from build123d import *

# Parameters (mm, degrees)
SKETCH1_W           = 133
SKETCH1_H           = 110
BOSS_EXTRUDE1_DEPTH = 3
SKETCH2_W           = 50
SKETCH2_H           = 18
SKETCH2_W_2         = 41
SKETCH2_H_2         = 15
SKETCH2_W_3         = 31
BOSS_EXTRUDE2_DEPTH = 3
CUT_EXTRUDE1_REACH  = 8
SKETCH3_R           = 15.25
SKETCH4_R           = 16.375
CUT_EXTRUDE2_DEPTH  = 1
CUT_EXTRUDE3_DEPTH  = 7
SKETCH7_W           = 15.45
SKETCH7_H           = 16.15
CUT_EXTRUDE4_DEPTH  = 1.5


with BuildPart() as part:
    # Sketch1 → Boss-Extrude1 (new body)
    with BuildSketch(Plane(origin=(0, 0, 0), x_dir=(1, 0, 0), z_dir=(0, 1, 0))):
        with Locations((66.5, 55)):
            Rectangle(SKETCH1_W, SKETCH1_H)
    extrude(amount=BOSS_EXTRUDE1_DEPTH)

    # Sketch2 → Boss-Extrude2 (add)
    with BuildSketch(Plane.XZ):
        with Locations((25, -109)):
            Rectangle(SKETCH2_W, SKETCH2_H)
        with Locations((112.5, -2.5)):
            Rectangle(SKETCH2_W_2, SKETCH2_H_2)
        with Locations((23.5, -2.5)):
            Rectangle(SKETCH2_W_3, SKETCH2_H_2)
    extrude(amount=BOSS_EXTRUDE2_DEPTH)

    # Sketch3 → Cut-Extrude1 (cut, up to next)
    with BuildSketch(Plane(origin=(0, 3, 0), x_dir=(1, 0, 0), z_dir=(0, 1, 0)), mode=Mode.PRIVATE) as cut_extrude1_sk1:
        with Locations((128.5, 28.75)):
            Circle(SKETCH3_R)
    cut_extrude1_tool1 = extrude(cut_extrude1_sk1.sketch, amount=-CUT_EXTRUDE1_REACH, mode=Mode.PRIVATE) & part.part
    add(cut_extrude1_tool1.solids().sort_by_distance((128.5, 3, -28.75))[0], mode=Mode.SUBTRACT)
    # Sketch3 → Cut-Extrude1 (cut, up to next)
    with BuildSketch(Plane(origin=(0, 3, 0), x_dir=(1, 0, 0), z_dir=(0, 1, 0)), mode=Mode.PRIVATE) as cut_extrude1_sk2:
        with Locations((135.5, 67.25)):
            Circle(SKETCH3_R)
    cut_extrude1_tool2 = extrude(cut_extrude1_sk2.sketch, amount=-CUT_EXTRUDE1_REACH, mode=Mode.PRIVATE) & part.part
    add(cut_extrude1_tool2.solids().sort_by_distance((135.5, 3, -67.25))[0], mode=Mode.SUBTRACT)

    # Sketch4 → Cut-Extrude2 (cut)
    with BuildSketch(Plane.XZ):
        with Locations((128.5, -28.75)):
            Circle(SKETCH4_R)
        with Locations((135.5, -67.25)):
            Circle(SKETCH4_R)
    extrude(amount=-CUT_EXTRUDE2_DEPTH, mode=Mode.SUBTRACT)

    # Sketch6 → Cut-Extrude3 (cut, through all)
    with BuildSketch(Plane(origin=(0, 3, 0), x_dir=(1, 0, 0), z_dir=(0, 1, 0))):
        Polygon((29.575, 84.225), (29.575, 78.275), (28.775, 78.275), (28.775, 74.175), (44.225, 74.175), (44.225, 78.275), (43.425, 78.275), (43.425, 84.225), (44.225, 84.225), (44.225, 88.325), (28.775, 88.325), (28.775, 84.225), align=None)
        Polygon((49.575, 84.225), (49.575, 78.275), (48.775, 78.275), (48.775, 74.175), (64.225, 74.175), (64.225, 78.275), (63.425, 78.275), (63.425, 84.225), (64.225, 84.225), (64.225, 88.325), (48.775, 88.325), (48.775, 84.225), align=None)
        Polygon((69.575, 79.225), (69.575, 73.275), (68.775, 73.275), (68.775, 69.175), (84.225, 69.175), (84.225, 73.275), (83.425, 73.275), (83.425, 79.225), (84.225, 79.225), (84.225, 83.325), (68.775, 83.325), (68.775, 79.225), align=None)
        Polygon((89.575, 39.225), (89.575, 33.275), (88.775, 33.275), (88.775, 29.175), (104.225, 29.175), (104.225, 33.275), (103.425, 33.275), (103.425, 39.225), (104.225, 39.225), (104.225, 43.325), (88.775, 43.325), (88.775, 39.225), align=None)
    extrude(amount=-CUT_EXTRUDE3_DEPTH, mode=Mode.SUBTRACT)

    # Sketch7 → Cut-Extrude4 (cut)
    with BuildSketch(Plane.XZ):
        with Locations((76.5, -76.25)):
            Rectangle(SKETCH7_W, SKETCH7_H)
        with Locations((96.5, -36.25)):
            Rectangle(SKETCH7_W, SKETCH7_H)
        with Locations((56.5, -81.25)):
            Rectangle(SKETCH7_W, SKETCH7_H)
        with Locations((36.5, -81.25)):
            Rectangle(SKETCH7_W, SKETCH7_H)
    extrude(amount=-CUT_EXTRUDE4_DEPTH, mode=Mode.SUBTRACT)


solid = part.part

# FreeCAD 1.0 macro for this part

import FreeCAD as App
import Part
import Sketcher
from FreeCAD import Vector
Q = App.Units.Quantity


def add_polygon(sketch, points):
    """Adds a closed chain of lines whose ends are joined by coincident constraints."""
    first, n = sketch.GeometryCount, len(points)
    for a, b in zip(points, points[1:] + points[:1]):
        sketch.addGeometry(Part.LineSegment(App.Vector(*a, 0), App.Vector(*b, 0)), False)
    for i in range(n):
        sketch.addConstraint(Sketcher.Constraint("Coincident", first + i, 2, first + (i + 1) % n, 1))

doc = App.newDocument("Part")
body = doc.addObject("PartDesign::Body", "Body")

sketch1 = body.newObject("Sketcher::SketchObject", "Sketch")
sketch1.AttachmentSupport = (doc.getObject("XZ_Plane"), [""])
sketch1.MapMode = "FlatFace"
add_polygon(sketch1, [(0, -110), (0, 0), (133, 0), (133, -110)])
sketch1.addConstraint(Sketcher.Constraint("Vertical", 0))
sketch1.addConstraint(Sketcher.Constraint("Horizontal", 1))
sketch1.addConstraint(Sketcher.Constraint("Vertical", 2))
sketch1.addConstraint(Sketcher.Constraint("Horizontal", 3))
sketch1.addConstraint(Sketcher.Constraint("Coincident", 0, 2, -1, 1))
sketch1.addConstraint(Sketcher.Constraint("DistanceX", 1, 1, 1, 2, Q("133 mm")))
sketch1.addConstraint(Sketcher.Constraint("DistanceY", 0, 1, 0, 2, Q("110 mm")))
pad1 = body.newObject("PartDesign::Pad", "Pad")
pad1.Profile = sketch1
pad1.Length = 3
pad1.Reversed = True

sketch2 = body.newObject("Sketcher::SketchObject", "Sketch001")
sketch2.AttachmentSupport = (doc.getObject("XZ_Plane"), [""])
sketch2.MapMode = "FlatFace"
add_polygon(sketch2, [(0, -100), (0, -118), (50, -118), (50, -100)])
add_polygon(sketch2, [(92, 5), (92, -10), (133, -10), (133, 5)])
add_polygon(sketch2, [(8, 5), (8, -10), (39, -10), (39, 5)])
sketch2.addConstraint(Sketcher.Constraint("Vertical", 0))
sketch2.addConstraint(Sketcher.Constraint("Horizontal", 1))
sketch2.addConstraint(Sketcher.Constraint("Vertical", 2))
sketch2.addConstraint(Sketcher.Constraint("Horizontal", 3))
sketch2.addConstraint(Sketcher.Constraint("Vertical", 4))
sketch2.addConstraint(Sketcher.Constraint("Horizontal", 5))
sketch2.addConstraint(Sketcher.Constraint("Vertical", 6))
sketch2.addConstraint(Sketcher.Constraint("Horizontal", 7))
sketch2.addConstraint(Sketcher.Constraint("Vertical", 8))
sketch2.addConstraint(Sketcher.Constraint("Horizontal", 9))
sketch2.addConstraint(Sketcher.Constraint("Vertical", 10))
sketch2.addConstraint(Sketcher.Constraint("Horizontal", 11))
sketch2.addConstraint(Sketcher.Constraint("PointOnObject", 0, 2, -2))
sketch2.addConstraint(Sketcher.Constraint("Horizontal", 5, 2, 8, 2))
sketch2.addConstraint(Sketcher.Constraint("Horizontal", 7, 2, 10, 2))
sketch2.addConstraint(Sketcher.Constraint("DistanceX", 1, 1, 1, 2, Q("50 mm")))
sketch2.addConstraint(Sketcher.Constraint("DistanceX", 5, 1, 5, 2, Q("41 mm")))
sketch2.addConstraint(Sketcher.Constraint("DistanceX", 9, 1, 9, 2, Q("31 mm")))
sketch2.addConstraint(Sketcher.Constraint("DistanceY", 0, 2, 0, 1, Q("18 mm")))
sketch2.addConstraint(Sketcher.Constraint("DistanceY", 4, 2, 4, 1, Q("15 mm")))
sketch2.addConstraint(Sketcher.Constraint("DistanceY", 0, 2, -1, 1, Q("118 mm")))
sketch2.addConstraint(Sketcher.Constraint("DistanceX", -1, 1, 4, 2, Q("92 mm")))
sketch2.addConstraint(Sketcher.Constraint("DistanceY", 4, 2, -1, 1, Q("10 mm")))
sketch2.addConstraint(Sketcher.Constraint("DistanceX", -1, 1, 8, 2, Q("8 mm")))
pad2 = body.newObject("PartDesign::Pad", "Pad001")
pad2.Profile = sketch2
pad2.Length = 3

sketch3 = body.newObject("Sketcher::SketchObject", "Sketch002")
sketch3.AttachmentSupport = (doc.getObject("XZ_Plane"), [""])
sketch3.MapMode = "FlatFace"
sketch3.AttachmentOffset = App.Placement(Vector(0, 0, -3), App.Rotation())
sketch3.addGeometry(Part.Circle(Vector(128.5, -28.75, 0), Vector(0, 0, 1), 15.25), False)
sketch3.addConstraint(Sketcher.Constraint("Diameter", 0, Q("30.5 mm")))
sketch3.addConstraint(Sketcher.Constraint("DistanceX", -1, 1, 0, 3, Q("128.5 mm")))
sketch3.addConstraint(Sketcher.Constraint("DistanceY", 0, 3, -1, 1, Q("28.75 mm")))
pocket1 = body.newObject("PartDesign::Pocket", "Pocket")
pocket1.Profile = sketch3
pocket1.Type = "UpToFirst"
pocket1.Reversed = True

sketch4 = body.newObject("Sketcher::SketchObject", "Sketch003")
sketch4.AttachmentSupport = (doc.getObject("XZ_Plane"), [""])
sketch4.MapMode = "FlatFace"
sketch4.AttachmentOffset = App.Placement(Vector(0, 0, -3), App.Rotation())
sketch4.addGeometry(Part.Circle(Vector(135.5, -67.25, 0), Vector(0, 0, 1), 15.25), False)
sketch4.addConstraint(Sketcher.Constraint("Diameter", 0, Q("30.5 mm")))
sketch4.addConstraint(Sketcher.Constraint("DistanceX", -1, 1, 0, 3, Q("135.5 mm")))
sketch4.addConstraint(Sketcher.Constraint("DistanceY", 0, 3, -1, 1, Q("67.25 mm")))
pocket2 = body.newObject("PartDesign::Pocket", "Pocket001")
pocket2.Profile = sketch4
pocket2.Length = 3
pocket2.Reversed = True

sketch5 = body.newObject("Sketcher::SketchObject", "Sketch004")
sketch5.AttachmentSupport = (doc.getObject("XZ_Plane"), [""])
sketch5.MapMode = "FlatFace"
sketch5.addGeometry(Part.Circle(Vector(128.5, -28.75, 0), Vector(0, 0, 1), 16.375), False)
sketch5.addGeometry(Part.Circle(Vector(135.5, -67.25, 0), Vector(0, 0, 1), 16.375), False)
sketch5.addConstraint(Sketcher.Constraint("Equal", 0, 1))
sketch5.addConstraint(Sketcher.Constraint("Diameter", 0, Q("32.75 mm")))
sketch5.addConstraint(Sketcher.Constraint("DistanceX", 0, 3, 1, 3, Q("7 mm")))
sketch5.addConstraint(Sketcher.Constraint("DistanceX", -1, 1, 0, 3, Q("128.5 mm")))
sketch5.addConstraint(Sketcher.Constraint("DistanceY", 1, 3, 0, 3, Q("38.5 mm")))
sketch5.addConstraint(Sketcher.Constraint("DistanceY", 0, 3, -1, 1, Q("28.75 mm")))
pocket3 = body.newObject("PartDesign::Pocket", "Pocket002")
pocket3.Profile = sketch5
pocket3.Length = 1

sketch6 = body.newObject("Sketcher::SketchObject", "Sketch005")
sketch6.AttachmentSupport = (doc.getObject("XZ_Plane"), [""])
sketch6.MapMode = "FlatFace"
sketch6.AttachmentOffset = App.Placement(Vector(0, 0, -3), App.Rotation())
add_polygon(sketch6, [(29.575, -84.225), (29.575, -78.275), (28.775, -78.275), (28.775, -74.175), (44.225, -74.175), (44.225, -78.275), (43.425, -78.275), (43.425, -84.225), (44.225, -84.225), (44.225, -88.325), (28.775, -88.325), (28.775, -84.225)])
add_polygon(sketch6, [(49.575, -84.225), (49.575, -78.275), (48.775, -78.275), (48.775, -74.175), (64.225, -74.175), (64.225, -78.275), (63.425, -78.275), (63.425, -84.225), (64.225, -84.225), (64.225, -88.325), (48.775, -88.325), (48.775, -84.225)])
add_polygon(sketch6, [(69.575, -79.225), (69.575, -73.275), (68.775, -73.275), (68.775, -69.175), (84.225, -69.175), (84.225, -73.275), (83.425, -73.275), (83.425, -79.225), (84.225, -79.225), (84.225, -83.325), (68.775, -83.325), (68.775, -79.225)])
add_polygon(sketch6, [(89.575, -39.225), (89.575, -33.275), (88.775, -33.275), (88.775, -29.175), (104.225, -29.175), (104.225, -33.275), (103.425, -33.275), (103.425, -39.225), (104.225, -39.225), (104.225, -43.325), (88.775, -43.325), (88.775, -39.225)])
sketch6.addConstraint(Sketcher.Constraint("Vertical", 0))
sketch6.addConstraint(Sketcher.Constraint("Horizontal", 1))
sketch6.addConstraint(Sketcher.Constraint("Vertical", 2))
sketch6.addConstraint(Sketcher.Constraint("Horizontal", 3))
sketch6.addConstraint(Sketcher.Constraint("Vertical", 4))
sketch6.addConstraint(Sketcher.Constraint("Horizontal", 5))
sketch6.addConstraint(Sketcher.Constraint("Vertical", 6))
sketch6.addConstraint(Sketcher.Constraint("Horizontal", 7))
sketch6.addConstraint(Sketcher.Constraint("Vertical", 8))
sketch6.addConstraint(Sketcher.Constraint("Horizontal", 9))
sketch6.addConstraint(Sketcher.Constraint("Vertical", 10))
sketch6.addConstraint(Sketcher.Constraint("Horizontal", 11))
sketch6.addConstraint(Sketcher.Constraint("Vertical", 12))
sketch6.addConstraint(Sketcher.Constraint("Horizontal", 13))
sketch6.addConstraint(Sketcher.Constraint("Vertical", 14))
sketch6.addConstraint(Sketcher.Constraint("Horizontal", 15))
sketch6.addConstraint(Sketcher.Constraint("Vertical", 16))
sketch6.addConstraint(Sketcher.Constraint("Horizontal", 17))
sketch6.addConstraint(Sketcher.Constraint("Vertical", 18))
sketch6.addConstraint(Sketcher.Constraint("Horizontal", 19))
sketch6.addConstraint(Sketcher.Constraint("Vertical", 20))
sketch6.addConstraint(Sketcher.Constraint("Horizontal", 21))
sketch6.addConstraint(Sketcher.Constraint("Vertical", 22))
sketch6.addConstraint(Sketcher.Constraint("Horizontal", 23))
sketch6.addConstraint(Sketcher.Constraint("Vertical", 24))
sketch6.addConstraint(Sketcher.Constraint("Horizontal", 25))
sketch6.addConstraint(Sketcher.Constraint("Vertical", 26))
sketch6.addConstraint(Sketcher.Constraint("Horizontal", 27))
sketch6.addConstraint(Sketcher.Constraint("Vertical", 28))
sketch6.addConstraint(Sketcher.Constraint("Horizontal", 29))
sketch6.addConstraint(Sketcher.Constraint("Vertical", 30))
sketch6.addConstraint(Sketcher.Constraint("Horizontal", 31))
sketch6.addConstraint(Sketcher.Constraint("Vertical", 32))
sketch6.addConstraint(Sketcher.Constraint("Horizontal", 33))
sketch6.addConstraint(Sketcher.Constraint("Vertical", 34))
sketch6.addConstraint(Sketcher.Constraint("Horizontal", 35))
sketch6.addConstraint(Sketcher.Constraint("Vertical", 36))
sketch6.addConstraint(Sketcher.Constraint("Horizontal", 37))
sketch6.addConstraint(Sketcher.Constraint("Vertical", 38))
sketch6.addConstraint(Sketcher.Constraint("Horizontal", 39))
sketch6.addConstraint(Sketcher.Constraint("Vertical", 40))
sketch6.addConstraint(Sketcher.Constraint("Horizontal", 41))
sketch6.addConstraint(Sketcher.Constraint("Vertical", 42))
sketch6.addConstraint(Sketcher.Constraint("Horizontal", 43))
sketch6.addConstraint(Sketcher.Constraint("Vertical", 44))
sketch6.addConstraint(Sketcher.Constraint("Horizontal", 45))
sketch6.addConstraint(Sketcher.Constraint("Vertical", 46))
sketch6.addConstraint(Sketcher.Constraint("Horizontal", 47))
sketch6.addConstraint(Sketcher.Constraint("Horizontal", 1, 2, 4, 2))
sketch6.addConstraint(Sketcher.Constraint("Horizontal", 7, 2, 10, 2))
sketch6.addConstraint(Sketcher.Constraint("Horizontal", 5, 2, 12, 2))
sketch6.addConstraint(Sketcher.Constraint("Horizontal", 3, 2, 14, 2))
sketch6.addConstraint(Sketcher.Constraint("Horizontal", 13, 2, 16, 2))
sketch6.addConstraint(Sketcher.Constraint("Horizontal", 11, 2, 18, 2))
sketch6.addConstraint(Sketcher.Constraint("Horizontal", 9, 2, 20, 2))
sketch6.addConstraint(Sketcher.Constraint("Horizontal", 19, 2, 22, 2))
sketch6.addConstraint(Sketcher.Constraint("Horizontal", 25, 2, 28, 2))
sketch6.addConstraint(Sketcher.Constraint("Horizontal", 31, 2, 34, 2))
sketch6.addConstraint(Sketcher.Constraint("Horizontal", 37, 2, 40, 2))
sketch6.addConstraint(Sketcher.Constraint("Horizontal", 43, 2, 46, 2))
sketch6.addConstraint(Sketcher.Constraint("Vertical", 4, 2, 7, 2))
sketch6.addConstraint(Sketcher.Constraint("Vertical", 2, 2, 9, 2))
sketch6.addConstraint(Sketcher.Constraint("Vertical", 16, 2, 19, 2))
sketch6.addConstraint(Sketcher.Constraint("Vertical", 14, 2, 21, 2))
sketch6.addConstraint(Sketcher.Constraint("Vertical", 28, 2, 31, 2))
sketch6.addConstraint(Sketcher.Constraint("Vertical", 26, 2, 33, 2))
sketch6.addConstraint(Sketcher.Constraint("Vertical", 40, 2, 43, 2))
sketch6.addConstraint(Sketcher.Constraint("Vertical", 38, 2, 45, 2))
sketch6.addConstraint(Sketcher.Constraint("Equal", 1, 5))
sketch6.addConstraint(Sketcher.Constraint("Equal", 11, 13))
sketch6.addConstraint(Sketcher.Constraint("Equal", 9, 15))
sketch6.addConstraint(Sketcher.Constraint("Equal", 13, 17))
sketch6.addConstraint(Sketcher.Constraint("Equal", 23, 25))
sketch6.addConstraint(Sketcher.Constraint("Equal", 21, 27))
sketch6.addConstraint(Sketcher.Constraint("Equal", 25, 29))
sketch6.addConstraint(Sketcher.Constraint("Equal", 35, 37))
sketch6.addConstraint(Sketcher.Constraint("Equal", 33, 39))
sketch6.addConstraint(Sketcher.Constraint("Equal", 37, 41))
sketch6.addConstraint(Sketcher.Constraint("Equal", 4, 8))
sketch6.addConstraint(Sketcher.Constraint("Equal", 18, 24))
sketch6.addConstraint(Sketcher.Constraint("Equal", 22, 26))
sketch6.addConstraint(Sketcher.Constraint("Equal", 28, 32))
sketch6.addConstraint(Sketcher.Constraint("Equal", 30, 36))
sketch6.addConstraint(Sketcher.Constraint("Equal", 34, 38))
sketch6.addConstraint(Sketcher.Constraint("Equal", 40, 44))
sketch6.addConstraint(Sketcher.Constraint("DistanceX", 1, 2, 1, 1, Q("0.8 mm")))
sketch6.addConstraint(Sketcher.Constraint("DistanceY", 2, 1, 2, 2, Q("4.1 mm")))
sketch6.addConstraint(Sketcher.Constraint("DistanceX", 3, 2, 15, 2, Q("20 mm")))
sketch6.addConstraint(Sketcher.Constraint("DistanceY", 16, 2, 24, 2, Q("5 mm")))
sketch6.addConstraint(Sketcher.Constraint("DistanceX", 15, 2, 27, 2, Q("20 mm")))
sketch6.addConstraint(Sketcher.Constraint("DistanceY", 28, 2, 36, 2, Q("40 mm")))
sketch6.addConstraint(Sketcher.Constraint("DistanceX", 24, 2, 36, 2, Q("20 mm")))
sketch6.addConstraint(Sketcher.Constraint("DistanceX", 3, 1, 3, 2, Q("15.45 mm")))
sketch6.addConstraint(Sketcher.Constraint("DistanceY", 0, 1, 0, 2, Q("5.95 mm")))
sketch6.addConstraint(Sketcher.Constraint("DistanceX", -1, 1, 0, 2, Q("29.575 mm")))
sketch6.addConstraint(Sketcher.Constraint("DistanceY", 0, 2, -1, 1, Q("78.275 mm")))
pocket4 = body.newObject("PartDesign::Pocket", "Pocket003")
pocket4.Profile = sketch6
pocket4.Type = "ThroughAll"
pocket4.Reversed = True

sketch7 = body.newObject("Sketcher::SketchObject", "Sketch006")
sketch7.AttachmentSupport = (doc.getObject("XZ_Plane"), [""])
sketch7.MapMode = "FlatFace"
add_polygon(sketch7, [(68.775, -68.175), (68.775, -84.325), (84.225, -84.325), (84.225, -68.175)])
add_polygon(sketch7, [(88.775, -28.175), (88.775, -44.325), (104.225, -44.325), (104.225, -28.175)])
add_polygon(sketch7, [(48.775, -73.175), (48.775, -89.325), (64.225, -89.325), (64.225, -73.175)])
add_polygon(sketch7, [(28.775, -73.175), (28.775, -89.325), (44.225, -89.325), (44.225, -73.175)])
sketch7.addConstraint(Sketcher.Constraint("Vertical", 0))
sketch7.addConstraint(Sketcher.Constraint("Horizontal", 1))
sketch7.addConstraint(Sketcher.Constraint("Vertical", 2))
sketch7.addConstraint(Sketcher.Constraint("Horizontal", 3))
sketch7.addConstraint(Sketcher.Constraint("Vertical", 4))
sketch7.addConstraint(Sketcher.Constraint("Horizontal", 5))
sketch7.addConstraint(Sketcher.Constraint("Vertical", 6))
sketch7.addConstraint(Sketcher.Constraint("Horizontal", 7))
sketch7.addConstraint(Sketcher.Constraint("Vertical", 8))
sketch7.addConstraint(Sketcher.Constraint("Horizontal", 9))
sketch7.addConstraint(Sketcher.Constraint("Vertical", 10))
sketch7.addConstraint(Sketcher.Constraint("Horizontal", 11))
sketch7.addConstraint(Sketcher.Constraint("Vertical", 12))
sketch7.addConstraint(Sketcher.Constraint("Horizontal", 13))
sketch7.addConstraint(Sketcher.Constraint("Vertical", 14))
sketch7.addConstraint(Sketcher.Constraint("Horizontal", 15))
sketch7.addConstraint(Sketcher.Constraint("Horizontal", 9, 2, 12, 2))
sketch7.addConstraint(Sketcher.Constraint("Horizontal", 11, 2, 14, 2))
sketch7.addConstraint(Sketcher.Constraint("Equal", 3, 5))
sketch7.addConstraint(Sketcher.Constraint("Equal", 7, 9))
sketch7.addConstraint(Sketcher.Constraint("Equal", 11, 13))
sketch7.addConstraint(Sketcher.Constraint("Equal", 2, 4))
sketch7.addConstraint(Sketcher.Constraint("Equal", 6, 8))
sketch7.addConstraint(Sketcher.Constraint("DistanceX", 3, 2, 4, 2, Q("20 mm")))
sketch7.addConstraint(Sketcher.Constraint("DistanceY", 1, 2, 4, 2, Q("40 mm")))
sketch7.addConstraint(Sketcher.Constraint("DistanceX", 8, 2, 0, 2, Q("20 mm")))
sketch7.addConstraint(Sketcher.Constraint("DistanceY", 8, 2, 0, 2, Q("5 mm")))
sketch7.addConstraint(Sketcher.Constraint("DistanceX", 12, 2, 8, 2, Q("20 mm")))
sketch7.addConstraint(Sketcher.Constraint("DistanceX", 1, 1, 1, 2, Q("15.45 mm")))
sketch7.addConstraint(Sketcher.Constraint("DistanceY", 0, 2, 0, 1, Q("16.15 mm")))
sketch7.addConstraint(Sketcher.Constraint("DistanceX", -1, 1, 0, 2, Q("68.775 mm")))
sketch7.addConstraint(Sketcher.Constraint("DistanceY", 0, 2, -1, 1, Q("84.325 mm")))
pocket5 = body.newObject("PartDesign::Pocket", "Pocket004")
pocket5.Profile = sketch7
pocket5.Length = 1.5

doc.recompute()
